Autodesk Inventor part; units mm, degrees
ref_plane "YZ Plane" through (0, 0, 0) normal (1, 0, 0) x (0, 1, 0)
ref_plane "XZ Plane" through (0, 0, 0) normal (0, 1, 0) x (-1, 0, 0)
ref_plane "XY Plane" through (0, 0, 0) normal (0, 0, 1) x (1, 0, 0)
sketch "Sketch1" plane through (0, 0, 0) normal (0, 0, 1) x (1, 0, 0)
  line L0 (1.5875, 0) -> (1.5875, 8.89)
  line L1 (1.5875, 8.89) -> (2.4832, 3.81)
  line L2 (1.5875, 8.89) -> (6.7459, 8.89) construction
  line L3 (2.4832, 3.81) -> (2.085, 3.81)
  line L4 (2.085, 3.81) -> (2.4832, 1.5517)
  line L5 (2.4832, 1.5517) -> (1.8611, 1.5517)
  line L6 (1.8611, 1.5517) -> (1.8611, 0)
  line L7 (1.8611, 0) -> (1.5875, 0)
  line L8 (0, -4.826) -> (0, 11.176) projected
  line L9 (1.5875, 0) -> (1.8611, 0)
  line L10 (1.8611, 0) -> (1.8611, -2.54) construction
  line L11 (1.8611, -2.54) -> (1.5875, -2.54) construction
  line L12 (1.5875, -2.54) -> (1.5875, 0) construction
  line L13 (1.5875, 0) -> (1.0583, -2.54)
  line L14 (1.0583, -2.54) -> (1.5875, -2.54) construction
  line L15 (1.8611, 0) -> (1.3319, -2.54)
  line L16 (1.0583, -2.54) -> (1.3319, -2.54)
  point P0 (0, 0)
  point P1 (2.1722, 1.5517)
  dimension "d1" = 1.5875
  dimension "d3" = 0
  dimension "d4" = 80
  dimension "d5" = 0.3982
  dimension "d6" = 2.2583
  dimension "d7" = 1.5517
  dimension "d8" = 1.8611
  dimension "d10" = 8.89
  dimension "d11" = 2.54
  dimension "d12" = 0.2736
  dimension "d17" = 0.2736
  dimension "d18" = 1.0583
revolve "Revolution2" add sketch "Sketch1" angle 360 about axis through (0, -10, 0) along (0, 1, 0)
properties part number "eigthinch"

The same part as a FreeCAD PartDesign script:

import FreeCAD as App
import Part
import Sketcher
from FreeCAD import Vector
Q = App.Units.Quantity


def add_polygon(sketch, points):
    """Adds a closed chain of lines whose ends are joined by coincident constraints."""
    first, n = sketch.GeometryCount, len(points)
    for a, b in zip(points, points[1:] + points[:1]):
        sketch.addGeometry(Part.LineSegment(App.Vector(*a, 0), App.Vector(*b, 0)), False)
    for i in range(n):
        sketch.addConstraint(Sketcher.Constraint("Coincident", first + i, 2, first + (i + 1) % n, 1))

doc = App.newDocument("Part")
params = doc.addObject("Spreadsheet::Sheet", "Params")
for row, (alias, value) in enumerate([
    ("sketch1_height", "0.35 in"),
    ("revolution_angle", "360 deg"),
], start=1):
    params.set(f"A{row}", alias)
    params.set(f"B{row}", "=" + value)
    params.setAlias(f"B{row}", alias)

body = doc.addObject("PartDesign::Body", "Body")

# Sketch on XY plane
sketch1 = body.newObject("Sketcher::SketchObject", "Sketch")
sketch1.AttachmentSupport = (doc.getObject("XY_Plane"), [""])
sketch1.MapMode = "FlatFace"
add_polygon(sketch1, [(1.59, 8.89), (1.59, 0), (1.06, -2.54), (1.33, -2.54), (1.86, 0), (1.86, 1.55), (2.48, 1.55), (2.08, 3.81), (2.48, 3.81)])  # lines 0-8
sketch1.addConstraint([
    Sketcher.Constraint("Vertical", 0),
    Sketcher.Constraint("Horizontal", 2),
    Sketcher.Constraint("Vertical", 4),
    Sketcher.Constraint("Horizontal", 5),
    Sketcher.Constraint("Horizontal", 7),
    Sketcher.Constraint("PointOnObject", 0, 2, -1),
    Sketcher.Constraint("PointOnObject", 3, 2, -1),
    Sketcher.Constraint("Parallel", 1, 3),
    Sketcher.Constraint("Parallel", 6, 8),
    Sketcher.Constraint("Vertical", 5, 2, 7, 2),
    Sketcher.Constraint("DistanceY", 0, 2, 0, 1, Q("0.35 in")),
    Sketcher.Constraint("DistanceY", 1, 2, -1, 1, Q("0.1 in")),
    Sketcher.Constraint("DistanceY", 4, 1, 4, 2, Q("0.0611 in")),
    Sketcher.Constraint("DistanceX", -1, 1, 0, 2, Q("0.0625 in")),
    Sketcher.Constraint("Angle", 6, Q("100 deg")),
    Sketcher.Constraint("DistanceX", 2, 1, 2, 2, 0.2736),
    Sketcher.Constraint("DistanceX", 7, 1, 7, 2, 0.3982),
    Sketcher.Constraint("DistanceX", -1, 1, 1, 2, 1.0583),
])
sketch1.setExpression("Constraints[19]", "Params.sketch1_height")
revolution = body.newObject("PartDesign::Revolution", "Revolution")
revolution.Profile = sketch1
revolution.ReferenceAxis = (sketch1, ["V_Axis"])
revolution.setExpression("Angle", "Params.revolution_angle")

doc.recompute()
